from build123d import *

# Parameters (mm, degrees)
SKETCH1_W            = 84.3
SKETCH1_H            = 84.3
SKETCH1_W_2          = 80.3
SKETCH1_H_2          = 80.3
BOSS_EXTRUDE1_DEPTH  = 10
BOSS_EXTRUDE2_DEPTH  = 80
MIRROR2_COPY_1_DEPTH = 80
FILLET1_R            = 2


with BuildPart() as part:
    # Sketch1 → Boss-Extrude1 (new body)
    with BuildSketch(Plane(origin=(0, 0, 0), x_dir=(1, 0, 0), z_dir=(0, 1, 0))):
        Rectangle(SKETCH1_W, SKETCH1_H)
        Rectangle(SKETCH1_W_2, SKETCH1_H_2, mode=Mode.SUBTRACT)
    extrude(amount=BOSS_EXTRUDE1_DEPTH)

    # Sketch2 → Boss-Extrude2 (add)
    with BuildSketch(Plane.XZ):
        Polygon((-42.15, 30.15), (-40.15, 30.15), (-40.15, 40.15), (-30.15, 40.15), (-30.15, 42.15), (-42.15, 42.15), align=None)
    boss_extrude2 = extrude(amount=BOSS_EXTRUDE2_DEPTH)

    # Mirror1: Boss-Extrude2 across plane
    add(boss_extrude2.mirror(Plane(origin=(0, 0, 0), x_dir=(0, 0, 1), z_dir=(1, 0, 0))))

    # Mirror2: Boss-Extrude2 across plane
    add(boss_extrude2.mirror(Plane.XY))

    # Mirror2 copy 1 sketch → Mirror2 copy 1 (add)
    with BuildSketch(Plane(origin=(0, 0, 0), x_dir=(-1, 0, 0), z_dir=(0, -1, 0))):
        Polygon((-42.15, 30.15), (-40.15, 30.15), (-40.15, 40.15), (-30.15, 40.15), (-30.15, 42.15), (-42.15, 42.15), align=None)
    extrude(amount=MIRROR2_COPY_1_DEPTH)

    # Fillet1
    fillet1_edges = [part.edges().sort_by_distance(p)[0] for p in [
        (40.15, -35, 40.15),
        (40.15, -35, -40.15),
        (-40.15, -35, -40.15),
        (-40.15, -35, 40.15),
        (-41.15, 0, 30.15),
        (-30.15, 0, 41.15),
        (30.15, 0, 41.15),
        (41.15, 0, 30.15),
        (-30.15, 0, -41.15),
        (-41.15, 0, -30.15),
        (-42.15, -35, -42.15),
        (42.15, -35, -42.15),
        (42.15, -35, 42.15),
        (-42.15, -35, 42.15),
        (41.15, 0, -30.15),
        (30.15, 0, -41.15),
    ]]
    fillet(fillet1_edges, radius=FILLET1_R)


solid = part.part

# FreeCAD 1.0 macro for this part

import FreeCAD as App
import Part
import Sketcher
from FreeCAD import Vector
Q = App.Units.Quantity


def edges_at(feature, points):
    """Names of the edges that pass closest to the given points."""
    edges = feature.Shape.Edges
    near = lambda p: min(range(len(edges)), key=lambda i: edges[i].distToShape(Part.Vertex(*p))[0])
    return sorted({f"Edge{near(p) + 1}" for p in points})


def add_polygon(sketch, points):
    """Adds a closed chain of lines whose ends are joined by coincident constraints."""
    first, n = sketch.GeometryCount, len(points)
    for a, b in zip(points, points[1:] + points[:1]):
        sketch.addGeometry(Part.LineSegment(App.Vector(*a, 0), App.Vector(*b, 0)), False)
    for i in range(n):
        sketch.addConstraint(Sketcher.Constraint("Coincident", first + i, 2, first + (i + 1) % n, 1))

doc = App.newDocument("Part")
body = doc.addObject("PartDesign::Body", "Body")

# Sketch on XZ plane
sketch1 = body.newObject("Sketcher::SketchObject", "Sketch")
sketch1.AttachmentSupport = (doc.getObject("XZ_Plane"), [""])
sketch1.MapMode = "FlatFace"
add_polygon(sketch1, [(-42, -42), (-42, 42), (42, 42), (42, -42)])  # lines 0-3
add_polygon(sketch1, [(40, 40), (-40, 40), (-40, -40), (40, -40)])  # lines 4-7
sketch1.addConstraint(Sketcher.Constraint("Vertical", 0))
sketch1.addConstraint(Sketcher.Constraint("Horizontal", 1))
sketch1.addConstraint(Sketcher.Constraint("Vertical", 2))
sketch1.addConstraint(Sketcher.Constraint("Horizontal", 3))
sketch1.addConstraint(Sketcher.Constraint("Horizontal", 4))
sketch1.addConstraint(Sketcher.Constraint("Vertical", 5))
sketch1.addConstraint(Sketcher.Constraint("Horizontal", 6))
sketch1.addConstraint(Sketcher.Constraint("Vertical", 7))
sketch1.addConstraint(Sketcher.Constraint("Symmetric", 0, 2, 2, 2, -1, 1))
sketch1.addConstraint(Sketcher.Constraint("Symmetric", 4, 2, 6, 2, -1, 1))
sketch1.addConstraint(Sketcher.Constraint("Equal", 3, 0))
sketch1.addConstraint(Sketcher.Constraint("Equal", 6, 5))
sketch1.addConstraint(Sketcher.Constraint("DistanceX", 1, 1, 1, 2, Q("84.3 mm")))
sketch1.addConstraint(Sketcher.Constraint("DistanceX", 4, 2, 4, 1, Q("80.3 mm")))
pad1 = body.newObject("PartDesign::Pad", "Pad")
pad1.Profile = sketch1
pad1.Length = 10
pad1.Reversed = True

# Sketch on XZ plane
sketch2 = body.newObject("Sketcher::SketchObject", "Sketch001")
sketch2.AttachmentSupport = (doc.getObject("XZ_Plane"), [""])
sketch2.MapMode = "FlatFace"
add_polygon(sketch2, [(-42.1, 30.1), (-40.1, 30.1), (-40.1, 40.1), (-30.1, 40.1), (-30.1, 42.1), (-42.1, 42.1)])  # lines 0-5
sketch2.addConstraint(Sketcher.Constraint("Horizontal", 0))
sketch2.addConstraint(Sketcher.Constraint("Vertical", 1))
sketch2.addConstraint(Sketcher.Constraint("Horizontal", 2))
sketch2.addConstraint(Sketcher.Constraint("Vertical", 3))
sketch2.addConstraint(Sketcher.Constraint("Horizontal", 4))
sketch2.addConstraint(Sketcher.Constraint("Vertical", 5))
sketch2.addConstraint(Sketcher.Constraint("Equal", 2, 1))
sketch2.addConstraint(Sketcher.Constraint("Equal", 0, 3))
sketch2.addConstraint(Sketcher.Constraint("DistanceX", 0, 1, 0, 2, Q("2 mm")))
sketch2.addConstraint(Sketcher.Constraint("DistanceX", 2, 1, 2, 2, Q("10 mm")))
sketch2.addConstraint(Sketcher.Constraint("DistanceX", 0, 2, -1, 1, Q("40.15 mm")))
sketch2.addConstraint(Sketcher.Constraint("DistanceY", -1, 1, 0, 2, Q("30.15 mm")))
pad2 = body.newObject("PartDesign::Pad", "Pad001")
pad2.Profile = sketch2
pad2.Length = 80
doc.recompute()

mirrored = body.newObject("PartDesign::Mirrored", "Mirrored")
mirrored.Originals = [pad2]
mirrored.MirrorPlane = (doc.getObject("YZ_Plane"), [""])
body.Tip = mirrored
doc.recompute()

mirrored2 = body.newObject("PartDesign::Mirrored", "Mirrored001")
mirrored2.Originals = [pad2]
mirrored2.MirrorPlane = (doc.getObject("XY_Plane"), [""])
body.Tip = mirrored2

# Sketch on XZ plane
sketch3 = body.newObject("Sketcher::SketchObject", "Sketch002")
sketch3.AttachmentSupport = (doc.getObject("XZ_Plane"), [""])
sketch3.MapMode = "FlatFace"
add_polygon(sketch3, [(42.1, -30.1), (40.1, -30.1), (40.1, -40.1), (30.1, -40.1), (30.1, -42.1), (42.1, -42.1)])  # lines 0-5
sketch3.addConstraint(Sketcher.Constraint("Horizontal", 0))
sketch3.addConstraint(Sketcher.Constraint("Vertical", 1))
sketch3.addConstraint(Sketcher.Constraint("Horizontal", 2))
sketch3.addConstraint(Sketcher.Constraint("Vertical", 3))
sketch3.addConstraint(Sketcher.Constraint("Horizontal", 4))
sketch3.addConstraint(Sketcher.Constraint("Vertical", 5))
sketch3.addConstraint(Sketcher.Constraint("Equal", 2, 1))
sketch3.addConstraint(Sketcher.Constraint("Equal", 0, 3))
sketch3.addConstraint(Sketcher.Constraint("DistanceX", 0, 2, 0, 1, Q("2 mm")))
sketch3.addConstraint(Sketcher.Constraint("DistanceX", 2, 2, 2, 1, Q("10 mm")))
sketch3.addConstraint(Sketcher.Constraint("DistanceX", -1, 1, 0, 2, Q("40.15 mm")))
sketch3.addConstraint(Sketcher.Constraint("DistanceY", 0, 2, -1, 1, Q("30.15 mm")))
pad3 = body.newObject("PartDesign::Pad", "Pad002")
pad3.Profile = sketch3
pad3.Length = 80
doc.recompute()

fillet = body.newObject("PartDesign::Fillet", "Fillet")
fillet.Base = (pad3, edges_at(pad3, [
    (40.15, -35, 40.15),
    (40.15, -35, -40.15),
    (-40.15, -35, -40.15),
    (-40.15, -35, 40.15),
    (-41.15, 0, 30.15),
    (-30.15, 0, 41.15),
    (30.15, 0, 41.15),
    (41.15, 0, 30.15),
    (-30.15, 0, -41.15),
    (-41.15, 0, -30.15),
    (-42.15, -35, -42.15),
    (42.15, -35, -42.15),
    (42.15, -35, 42.15),
    (-42.15, -35, 42.15),
    (41.15, 0, -30.15),
    (30.15, 0, -41.15),
]))
fillet.Radius = 2

doc.recompute()
